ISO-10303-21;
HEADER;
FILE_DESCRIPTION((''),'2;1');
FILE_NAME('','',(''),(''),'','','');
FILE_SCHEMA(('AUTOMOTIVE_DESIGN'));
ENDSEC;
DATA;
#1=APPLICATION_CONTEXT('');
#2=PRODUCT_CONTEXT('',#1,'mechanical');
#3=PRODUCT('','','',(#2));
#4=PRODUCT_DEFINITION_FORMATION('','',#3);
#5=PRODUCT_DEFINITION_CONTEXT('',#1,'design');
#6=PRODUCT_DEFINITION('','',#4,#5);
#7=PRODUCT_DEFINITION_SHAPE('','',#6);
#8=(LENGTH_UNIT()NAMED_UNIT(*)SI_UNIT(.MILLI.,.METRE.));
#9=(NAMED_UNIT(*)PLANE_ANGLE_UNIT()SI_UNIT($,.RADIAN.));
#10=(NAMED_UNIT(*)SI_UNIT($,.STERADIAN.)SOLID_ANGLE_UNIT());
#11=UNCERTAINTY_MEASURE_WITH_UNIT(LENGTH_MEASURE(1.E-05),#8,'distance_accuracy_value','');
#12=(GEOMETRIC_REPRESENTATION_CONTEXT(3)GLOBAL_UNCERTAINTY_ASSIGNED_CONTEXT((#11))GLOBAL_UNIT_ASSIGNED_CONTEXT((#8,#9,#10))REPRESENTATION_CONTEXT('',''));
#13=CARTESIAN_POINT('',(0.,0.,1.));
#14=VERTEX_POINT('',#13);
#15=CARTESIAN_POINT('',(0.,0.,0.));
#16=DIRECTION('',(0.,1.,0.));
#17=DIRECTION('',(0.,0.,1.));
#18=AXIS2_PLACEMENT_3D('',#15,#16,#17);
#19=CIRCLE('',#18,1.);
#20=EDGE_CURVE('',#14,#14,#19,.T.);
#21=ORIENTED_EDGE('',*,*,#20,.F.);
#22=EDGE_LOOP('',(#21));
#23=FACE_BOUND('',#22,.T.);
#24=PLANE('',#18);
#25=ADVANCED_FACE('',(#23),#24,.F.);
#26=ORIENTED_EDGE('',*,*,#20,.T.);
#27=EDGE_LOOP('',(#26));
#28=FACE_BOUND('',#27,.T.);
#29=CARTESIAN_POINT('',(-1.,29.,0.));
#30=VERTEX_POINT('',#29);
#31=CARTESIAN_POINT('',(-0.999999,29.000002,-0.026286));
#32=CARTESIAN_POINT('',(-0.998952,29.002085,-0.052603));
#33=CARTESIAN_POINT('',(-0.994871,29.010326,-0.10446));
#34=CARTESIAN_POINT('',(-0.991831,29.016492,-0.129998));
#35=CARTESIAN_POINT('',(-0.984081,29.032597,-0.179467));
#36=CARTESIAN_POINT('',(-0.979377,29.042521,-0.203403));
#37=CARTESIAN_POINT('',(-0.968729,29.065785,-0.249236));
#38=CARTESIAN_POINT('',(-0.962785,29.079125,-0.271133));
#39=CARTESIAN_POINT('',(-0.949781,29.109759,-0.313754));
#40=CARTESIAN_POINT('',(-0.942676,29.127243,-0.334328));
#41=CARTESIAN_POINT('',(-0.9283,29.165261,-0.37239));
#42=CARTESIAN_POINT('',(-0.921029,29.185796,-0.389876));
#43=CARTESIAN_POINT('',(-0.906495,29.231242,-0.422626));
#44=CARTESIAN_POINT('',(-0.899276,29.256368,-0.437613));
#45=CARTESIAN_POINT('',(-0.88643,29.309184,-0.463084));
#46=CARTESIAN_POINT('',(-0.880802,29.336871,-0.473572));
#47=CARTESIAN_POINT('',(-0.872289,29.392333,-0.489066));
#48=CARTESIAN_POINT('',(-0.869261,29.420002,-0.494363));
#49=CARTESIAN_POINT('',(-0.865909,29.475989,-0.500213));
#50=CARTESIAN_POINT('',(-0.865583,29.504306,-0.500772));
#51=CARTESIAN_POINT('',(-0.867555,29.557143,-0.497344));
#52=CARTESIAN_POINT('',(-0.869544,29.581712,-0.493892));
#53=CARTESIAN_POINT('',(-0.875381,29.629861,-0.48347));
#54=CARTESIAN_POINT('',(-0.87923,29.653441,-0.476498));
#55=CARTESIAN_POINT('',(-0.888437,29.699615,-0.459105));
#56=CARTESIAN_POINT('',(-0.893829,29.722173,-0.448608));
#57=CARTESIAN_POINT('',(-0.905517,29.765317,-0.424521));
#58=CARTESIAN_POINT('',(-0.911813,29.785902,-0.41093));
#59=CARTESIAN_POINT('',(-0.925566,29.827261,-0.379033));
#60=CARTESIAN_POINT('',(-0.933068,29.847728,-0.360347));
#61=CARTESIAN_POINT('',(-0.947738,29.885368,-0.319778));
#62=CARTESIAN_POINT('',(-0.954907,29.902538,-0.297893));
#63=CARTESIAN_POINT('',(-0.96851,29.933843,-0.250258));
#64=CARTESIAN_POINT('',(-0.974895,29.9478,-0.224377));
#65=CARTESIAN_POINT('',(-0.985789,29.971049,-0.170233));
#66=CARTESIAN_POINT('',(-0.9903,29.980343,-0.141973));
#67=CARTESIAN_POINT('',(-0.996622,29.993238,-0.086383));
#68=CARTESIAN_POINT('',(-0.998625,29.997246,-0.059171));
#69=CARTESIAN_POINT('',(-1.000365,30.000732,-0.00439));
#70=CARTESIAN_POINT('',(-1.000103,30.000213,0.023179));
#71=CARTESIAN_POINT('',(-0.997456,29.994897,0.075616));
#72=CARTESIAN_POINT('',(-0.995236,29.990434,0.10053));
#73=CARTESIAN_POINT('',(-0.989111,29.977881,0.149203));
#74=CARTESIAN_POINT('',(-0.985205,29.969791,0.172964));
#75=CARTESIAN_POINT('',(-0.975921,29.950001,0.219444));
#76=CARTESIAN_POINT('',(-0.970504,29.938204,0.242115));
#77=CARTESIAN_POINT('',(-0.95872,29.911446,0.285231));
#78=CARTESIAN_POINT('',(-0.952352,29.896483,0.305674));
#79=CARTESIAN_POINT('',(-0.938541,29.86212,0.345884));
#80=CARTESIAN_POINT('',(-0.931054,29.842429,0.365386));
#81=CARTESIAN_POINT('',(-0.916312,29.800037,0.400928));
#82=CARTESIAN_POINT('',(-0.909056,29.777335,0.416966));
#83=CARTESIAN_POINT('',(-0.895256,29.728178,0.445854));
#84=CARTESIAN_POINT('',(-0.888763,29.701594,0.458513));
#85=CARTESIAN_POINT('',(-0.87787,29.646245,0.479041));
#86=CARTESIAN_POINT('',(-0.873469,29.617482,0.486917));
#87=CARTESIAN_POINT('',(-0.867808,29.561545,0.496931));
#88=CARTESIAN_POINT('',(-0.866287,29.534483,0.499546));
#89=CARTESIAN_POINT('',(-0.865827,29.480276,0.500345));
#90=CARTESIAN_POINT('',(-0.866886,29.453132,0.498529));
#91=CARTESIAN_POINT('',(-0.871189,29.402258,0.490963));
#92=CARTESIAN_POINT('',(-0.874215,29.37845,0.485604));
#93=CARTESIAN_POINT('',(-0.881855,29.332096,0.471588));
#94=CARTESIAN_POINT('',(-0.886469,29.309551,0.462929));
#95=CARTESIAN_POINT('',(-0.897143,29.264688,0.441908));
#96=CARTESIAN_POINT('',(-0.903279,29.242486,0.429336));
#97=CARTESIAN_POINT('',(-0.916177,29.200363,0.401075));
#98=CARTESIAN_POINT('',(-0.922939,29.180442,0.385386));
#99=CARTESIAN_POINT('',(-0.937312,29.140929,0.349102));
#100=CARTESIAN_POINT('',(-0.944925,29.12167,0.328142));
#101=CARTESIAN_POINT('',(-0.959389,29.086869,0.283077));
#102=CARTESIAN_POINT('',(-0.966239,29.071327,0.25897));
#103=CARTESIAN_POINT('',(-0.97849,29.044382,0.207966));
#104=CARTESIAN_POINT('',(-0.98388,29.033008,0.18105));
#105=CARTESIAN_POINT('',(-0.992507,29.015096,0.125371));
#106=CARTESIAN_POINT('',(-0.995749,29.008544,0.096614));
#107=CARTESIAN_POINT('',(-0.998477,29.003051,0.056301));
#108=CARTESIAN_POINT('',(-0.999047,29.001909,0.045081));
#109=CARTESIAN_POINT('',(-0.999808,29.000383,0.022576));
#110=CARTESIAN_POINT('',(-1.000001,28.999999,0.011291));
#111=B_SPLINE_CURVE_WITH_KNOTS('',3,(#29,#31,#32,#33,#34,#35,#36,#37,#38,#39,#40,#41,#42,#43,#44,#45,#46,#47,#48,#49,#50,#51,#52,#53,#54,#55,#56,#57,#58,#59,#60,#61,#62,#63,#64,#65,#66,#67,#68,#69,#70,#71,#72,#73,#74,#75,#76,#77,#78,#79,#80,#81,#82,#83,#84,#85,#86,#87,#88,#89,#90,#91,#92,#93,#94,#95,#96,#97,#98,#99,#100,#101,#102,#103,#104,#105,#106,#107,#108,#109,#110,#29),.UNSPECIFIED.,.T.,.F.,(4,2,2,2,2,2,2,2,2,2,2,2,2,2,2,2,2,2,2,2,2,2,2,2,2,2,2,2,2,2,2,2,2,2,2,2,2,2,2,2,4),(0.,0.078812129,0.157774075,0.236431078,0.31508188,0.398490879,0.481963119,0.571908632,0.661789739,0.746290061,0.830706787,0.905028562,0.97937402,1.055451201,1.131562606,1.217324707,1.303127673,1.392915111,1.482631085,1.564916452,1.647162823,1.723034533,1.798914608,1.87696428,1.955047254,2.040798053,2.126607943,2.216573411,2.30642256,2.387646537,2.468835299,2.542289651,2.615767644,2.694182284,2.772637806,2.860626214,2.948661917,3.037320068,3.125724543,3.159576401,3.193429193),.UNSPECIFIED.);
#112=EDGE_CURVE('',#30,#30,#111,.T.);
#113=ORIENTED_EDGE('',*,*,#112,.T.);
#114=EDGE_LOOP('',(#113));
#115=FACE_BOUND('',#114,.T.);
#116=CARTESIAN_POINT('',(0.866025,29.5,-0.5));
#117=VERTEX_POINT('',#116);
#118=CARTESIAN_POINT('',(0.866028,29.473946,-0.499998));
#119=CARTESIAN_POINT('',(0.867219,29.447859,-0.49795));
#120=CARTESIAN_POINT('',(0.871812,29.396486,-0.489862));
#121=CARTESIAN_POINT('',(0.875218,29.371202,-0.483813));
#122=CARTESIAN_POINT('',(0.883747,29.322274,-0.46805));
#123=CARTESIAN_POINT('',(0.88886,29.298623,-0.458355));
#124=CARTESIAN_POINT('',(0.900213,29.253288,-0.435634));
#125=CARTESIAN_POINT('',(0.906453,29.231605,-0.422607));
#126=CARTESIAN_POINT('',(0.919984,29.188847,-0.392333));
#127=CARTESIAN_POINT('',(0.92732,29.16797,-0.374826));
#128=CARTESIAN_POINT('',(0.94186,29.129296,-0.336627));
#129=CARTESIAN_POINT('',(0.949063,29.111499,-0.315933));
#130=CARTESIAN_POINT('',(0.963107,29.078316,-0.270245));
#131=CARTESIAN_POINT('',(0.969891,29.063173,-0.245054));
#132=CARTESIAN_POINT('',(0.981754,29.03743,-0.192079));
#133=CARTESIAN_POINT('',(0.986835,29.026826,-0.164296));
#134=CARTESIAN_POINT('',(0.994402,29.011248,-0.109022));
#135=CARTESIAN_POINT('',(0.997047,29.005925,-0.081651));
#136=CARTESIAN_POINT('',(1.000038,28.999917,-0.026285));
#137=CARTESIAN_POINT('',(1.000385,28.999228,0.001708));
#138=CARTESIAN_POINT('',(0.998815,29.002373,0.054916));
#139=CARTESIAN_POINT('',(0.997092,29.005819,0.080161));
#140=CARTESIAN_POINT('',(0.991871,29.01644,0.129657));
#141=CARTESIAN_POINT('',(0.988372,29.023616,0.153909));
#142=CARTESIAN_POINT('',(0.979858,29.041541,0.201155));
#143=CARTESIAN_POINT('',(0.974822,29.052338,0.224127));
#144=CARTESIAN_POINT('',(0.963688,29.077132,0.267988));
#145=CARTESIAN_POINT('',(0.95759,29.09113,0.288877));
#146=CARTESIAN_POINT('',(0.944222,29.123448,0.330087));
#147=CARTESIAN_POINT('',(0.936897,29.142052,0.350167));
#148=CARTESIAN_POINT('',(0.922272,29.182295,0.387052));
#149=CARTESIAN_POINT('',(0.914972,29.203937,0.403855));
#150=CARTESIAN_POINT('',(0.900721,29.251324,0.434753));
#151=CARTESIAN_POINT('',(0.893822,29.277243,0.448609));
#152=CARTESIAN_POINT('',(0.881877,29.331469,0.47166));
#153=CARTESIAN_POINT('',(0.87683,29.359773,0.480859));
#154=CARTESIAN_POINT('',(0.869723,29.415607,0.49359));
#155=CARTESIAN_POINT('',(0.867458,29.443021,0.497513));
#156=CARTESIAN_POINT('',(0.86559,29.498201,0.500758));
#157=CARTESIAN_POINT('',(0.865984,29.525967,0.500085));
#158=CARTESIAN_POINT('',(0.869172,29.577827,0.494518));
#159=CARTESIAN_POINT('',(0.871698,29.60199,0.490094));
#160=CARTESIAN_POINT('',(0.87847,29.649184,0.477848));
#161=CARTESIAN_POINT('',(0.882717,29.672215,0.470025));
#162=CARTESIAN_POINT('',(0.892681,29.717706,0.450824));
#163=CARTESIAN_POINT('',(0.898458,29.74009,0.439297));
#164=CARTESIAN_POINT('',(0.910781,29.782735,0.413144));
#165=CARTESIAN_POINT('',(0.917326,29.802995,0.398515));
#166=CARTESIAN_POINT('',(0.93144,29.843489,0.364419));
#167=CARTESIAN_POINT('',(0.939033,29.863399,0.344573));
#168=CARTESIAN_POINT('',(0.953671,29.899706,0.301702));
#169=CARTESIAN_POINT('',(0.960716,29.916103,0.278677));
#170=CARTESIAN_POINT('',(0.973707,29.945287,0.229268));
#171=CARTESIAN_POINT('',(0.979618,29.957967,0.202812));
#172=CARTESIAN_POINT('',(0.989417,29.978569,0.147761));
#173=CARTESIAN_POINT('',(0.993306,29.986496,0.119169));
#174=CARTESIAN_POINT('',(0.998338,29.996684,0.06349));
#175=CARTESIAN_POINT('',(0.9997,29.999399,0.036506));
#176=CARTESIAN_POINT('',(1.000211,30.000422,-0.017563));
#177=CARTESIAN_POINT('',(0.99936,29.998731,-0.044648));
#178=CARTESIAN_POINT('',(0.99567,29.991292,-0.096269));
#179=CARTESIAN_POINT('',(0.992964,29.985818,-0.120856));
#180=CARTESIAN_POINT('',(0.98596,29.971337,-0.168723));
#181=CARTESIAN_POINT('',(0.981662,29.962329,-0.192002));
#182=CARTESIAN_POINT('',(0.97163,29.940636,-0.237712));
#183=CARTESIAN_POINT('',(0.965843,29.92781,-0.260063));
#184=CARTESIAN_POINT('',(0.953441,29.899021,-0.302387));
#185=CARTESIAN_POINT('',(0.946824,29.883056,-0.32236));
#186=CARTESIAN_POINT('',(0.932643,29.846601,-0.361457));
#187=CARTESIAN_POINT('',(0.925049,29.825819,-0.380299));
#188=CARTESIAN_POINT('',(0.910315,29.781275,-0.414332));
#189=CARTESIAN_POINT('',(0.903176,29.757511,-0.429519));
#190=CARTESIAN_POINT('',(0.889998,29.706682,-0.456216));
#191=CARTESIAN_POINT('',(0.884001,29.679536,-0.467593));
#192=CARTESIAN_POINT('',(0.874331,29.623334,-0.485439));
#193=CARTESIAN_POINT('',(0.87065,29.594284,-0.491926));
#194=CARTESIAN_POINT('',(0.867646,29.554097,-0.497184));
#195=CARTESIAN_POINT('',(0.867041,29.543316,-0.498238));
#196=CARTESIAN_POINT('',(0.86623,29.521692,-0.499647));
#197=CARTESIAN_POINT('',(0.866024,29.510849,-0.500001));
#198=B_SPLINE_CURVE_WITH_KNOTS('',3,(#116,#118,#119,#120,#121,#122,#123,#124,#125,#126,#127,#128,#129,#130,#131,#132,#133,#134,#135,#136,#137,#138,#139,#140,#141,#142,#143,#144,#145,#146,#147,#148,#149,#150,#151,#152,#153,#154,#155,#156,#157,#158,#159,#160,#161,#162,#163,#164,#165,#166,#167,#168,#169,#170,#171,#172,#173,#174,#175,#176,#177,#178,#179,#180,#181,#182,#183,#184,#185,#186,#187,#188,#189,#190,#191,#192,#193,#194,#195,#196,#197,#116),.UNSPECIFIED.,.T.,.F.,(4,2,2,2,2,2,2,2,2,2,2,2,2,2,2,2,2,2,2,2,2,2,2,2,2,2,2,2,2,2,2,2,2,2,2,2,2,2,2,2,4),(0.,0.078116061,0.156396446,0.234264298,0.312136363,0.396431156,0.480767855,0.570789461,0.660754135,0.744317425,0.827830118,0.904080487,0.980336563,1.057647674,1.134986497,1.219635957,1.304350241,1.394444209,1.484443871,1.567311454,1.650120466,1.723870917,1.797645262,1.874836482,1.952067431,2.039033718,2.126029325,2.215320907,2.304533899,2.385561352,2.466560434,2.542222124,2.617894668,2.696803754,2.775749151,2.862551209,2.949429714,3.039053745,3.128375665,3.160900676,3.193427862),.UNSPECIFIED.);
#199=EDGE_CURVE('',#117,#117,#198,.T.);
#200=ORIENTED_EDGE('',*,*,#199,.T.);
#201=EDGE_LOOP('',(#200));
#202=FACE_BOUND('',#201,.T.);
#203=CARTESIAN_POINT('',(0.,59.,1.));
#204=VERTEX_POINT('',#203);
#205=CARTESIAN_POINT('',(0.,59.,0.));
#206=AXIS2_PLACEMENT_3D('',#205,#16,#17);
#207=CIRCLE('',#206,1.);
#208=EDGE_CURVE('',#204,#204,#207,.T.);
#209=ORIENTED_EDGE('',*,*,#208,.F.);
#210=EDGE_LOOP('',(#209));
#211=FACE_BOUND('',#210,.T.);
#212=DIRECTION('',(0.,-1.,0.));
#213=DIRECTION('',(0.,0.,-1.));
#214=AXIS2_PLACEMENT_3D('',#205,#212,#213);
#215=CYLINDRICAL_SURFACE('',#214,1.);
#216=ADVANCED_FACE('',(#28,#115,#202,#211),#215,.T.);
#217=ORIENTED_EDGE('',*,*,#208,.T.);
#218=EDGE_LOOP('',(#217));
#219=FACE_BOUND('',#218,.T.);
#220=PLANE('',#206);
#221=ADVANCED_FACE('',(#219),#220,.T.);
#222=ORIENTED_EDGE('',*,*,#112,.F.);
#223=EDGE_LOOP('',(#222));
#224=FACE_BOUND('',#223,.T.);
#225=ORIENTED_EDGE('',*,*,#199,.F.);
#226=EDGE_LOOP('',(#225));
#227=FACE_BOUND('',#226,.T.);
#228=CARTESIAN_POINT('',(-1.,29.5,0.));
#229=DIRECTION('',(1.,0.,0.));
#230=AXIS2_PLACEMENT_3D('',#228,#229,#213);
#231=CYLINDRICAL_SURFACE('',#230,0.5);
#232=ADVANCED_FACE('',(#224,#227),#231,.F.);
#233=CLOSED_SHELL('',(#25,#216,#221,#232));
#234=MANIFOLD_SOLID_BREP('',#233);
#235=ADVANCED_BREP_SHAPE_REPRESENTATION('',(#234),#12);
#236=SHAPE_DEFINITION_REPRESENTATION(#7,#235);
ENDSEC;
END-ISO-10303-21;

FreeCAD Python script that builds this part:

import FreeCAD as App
import Part
import Sketcher
from FreeCAD import Vector
Q = App.Units.Quantity

doc = App.newDocument("Part")
body = doc.addObject("PartDesign::Body", "Body")

sketch1 = body.newObject("Sketcher::SketchObject", "Sketch")
sketch1.AttachmentSupport = (doc.getObject("XZ_Plane"), [""])
sketch1.MapMode = "FlatFace"
sketch1.addGeometry(Part.Circle(Vector(0, 0, 0), Vector(0, 0, 1), 1), False)
sketch1.addConstraint(Sketcher.Constraint("Coincident", 0, 3, -1, 1))
sketch1.addConstraint(Sketcher.Constraint("Diameter", 0, Q("2 mm")))
pad1 = body.newObject("PartDesign::Pad", "Pad")
pad1.Profile = sketch1
pad1.Length = 59
pad1.Reversed = True

sketch2 = body.newObject("Sketcher::SketchObject", "Sketch001")
sketch2.AttachmentSupport = (doc.getObject("YZ_Plane"), [""])
sketch2.MapMode = "FlatFace"
sketch2.addGeometry(Part.Circle(Vector(29.5, 0, 0), Vector(0, 0, 1), 0.5), False)
sketch2.addConstraint(Sketcher.Constraint("PointOnObject", 0, 3, -1))
sketch2.addConstraint(Sketcher.Constraint("Diameter", 0, Q("1 mm")))
sketch2.addConstraint(Sketcher.Constraint("DistanceX", -1, 1, 0, 3, Q("29.5 mm")))
pocket1 = body.newObject("PartDesign::Pocket", "Pocket")
pocket1.Profile = sketch2
pocket1.Type = "ThroughAll"
pocket1.Midplane = True

doc.recompute()
